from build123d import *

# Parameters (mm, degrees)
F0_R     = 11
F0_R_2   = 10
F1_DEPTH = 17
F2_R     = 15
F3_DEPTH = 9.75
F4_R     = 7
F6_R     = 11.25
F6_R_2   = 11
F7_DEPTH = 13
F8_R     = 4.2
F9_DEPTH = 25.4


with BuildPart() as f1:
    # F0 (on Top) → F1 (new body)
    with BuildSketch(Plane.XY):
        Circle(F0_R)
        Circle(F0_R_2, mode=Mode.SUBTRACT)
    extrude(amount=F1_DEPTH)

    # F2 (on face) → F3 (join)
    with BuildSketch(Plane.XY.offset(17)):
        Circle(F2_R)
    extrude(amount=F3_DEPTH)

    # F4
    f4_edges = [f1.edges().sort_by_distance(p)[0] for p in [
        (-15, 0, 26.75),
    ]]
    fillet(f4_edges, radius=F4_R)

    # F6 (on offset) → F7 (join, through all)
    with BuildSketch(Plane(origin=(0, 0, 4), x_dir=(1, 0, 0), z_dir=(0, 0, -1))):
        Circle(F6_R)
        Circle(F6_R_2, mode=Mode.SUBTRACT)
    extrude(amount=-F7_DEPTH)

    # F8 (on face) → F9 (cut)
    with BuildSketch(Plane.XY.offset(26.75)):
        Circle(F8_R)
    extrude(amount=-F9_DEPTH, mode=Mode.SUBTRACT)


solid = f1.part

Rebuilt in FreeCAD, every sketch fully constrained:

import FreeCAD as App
import Part
import Sketcher


def edges_at(feature, points):
    """Names of the edges that pass closest to the given points."""
    edges = feature.Shape.Edges
    near = lambda p: min(range(len(edges)), key=lambda i: edges[i].distToShape(Part.Vertex(*p))[0])
    return sorted({f"Edge{near(p) + 1}" for p in points})

doc = App.newDocument("Part")
body = doc.addObject("PartDesign::Body", "Body")

# Sketch on XY plane
sketch1 = body.newObject("Sketcher::SketchObject", "Sketch")
sketch1.AttachmentSupport = (doc.getObject("XY_Plane"), [""])
sketch1.MapMode = "FlatFace"
sketch1.addGeometry([
    Part.Circle(App.Vector(0, 0, 0), App.Vector(0, 0, 1), 11),
    Part.Circle(App.Vector(0, 0, 0), App.Vector(0, 0, 1), 10),
], False)
sketch1.addConstraint([
    Sketcher.Constraint("Coincident", 0, 3, -1, 1),
    Sketcher.Constraint("Coincident", 1, 3, -1, 1),
    Sketcher.Constraint("Diameter", 0, 22.0),
    Sketcher.Constraint("Diameter", 1, 20.0),
])
pad1 = body.newObject("PartDesign::Pad", "Pad")
pad1.Profile = sketch1
pad1.Length = 17

# Sketch on XY plane
sketch2 = body.newObject("Sketcher::SketchObject", "Sketch001")
sketch2.AttachmentSupport = (doc.getObject("XY_Plane"), [""])
sketch2.MapMode = "FlatFace"
sketch2.AttachmentOffset = App.Placement(App.Vector(0, 0, 17), App.Rotation())
sketch2.addGeometry(Part.Circle(App.Vector(0, 0, 0), App.Vector(0, 0, 1), 15), False)
sketch2.addConstraint([
    Sketcher.Constraint("Coincident", 0, 3, -1, 1),
    Sketcher.Constraint("Diameter", 0, 30.0),
])
pad2 = body.newObject("PartDesign::Pad", "Pad001")
pad2.Profile = sketch2
pad2.Length = 9.75
doc.recompute()

fillet = body.newObject("PartDesign::Fillet", "Fillet")
fillet.Base = (pad2, edges_at(pad2, [(-15, 0, 26.75)]))
fillet.Radius = 7

# Sketch on XY plane
sketch3 = body.newObject("Sketcher::SketchObject", "Sketch002")
sketch3.AttachmentSupport = (doc.getObject("XY_Plane"), [""])
sketch3.MapMode = "FlatFace"
sketch3.AttachmentOffset = App.Placement(App.Vector(0, 0, 4), App.Rotation())
sketch3.addGeometry([
    Part.Circle(App.Vector(0, 0, 0), App.Vector(0, 0, 1), 11),
    Part.Circle(App.Vector(0, 0, 0), App.Vector(0, 0, 1), 11),
], False)
sketch3.addConstraint([
    Sketcher.Constraint("Coincident", 0, 3, -1, 1),
    Sketcher.Constraint("Coincident", 1, 3, -1, 1),
    Sketcher.Constraint("Diameter", 1, 22.0),
    Sketcher.Constraint("Diameter", 0, 22.5),
])
pad3 = body.newObject("PartDesign::Pad", "Pad002")
pad3.Profile = sketch3
pad3.Length = 13

# Sketch on XY plane
sketch4 = body.newObject("Sketcher::SketchObject", "Sketch003")
sketch4.AttachmentSupport = (doc.getObject("XY_Plane"), [""])
sketch4.MapMode = "FlatFace"
sketch4.AttachmentOffset = App.Placement(App.Vector(0, 0, 26.75), App.Rotation())
sketch4.addGeometry(Part.Circle(App.Vector(0, 0, 0), App.Vector(0, 0, 1), 4.2), False)
sketch4.addConstraint([
    Sketcher.Constraint("Coincident", 0, 3, -1, 1),
    Sketcher.Constraint("Diameter", 0, 8.4),
])
pocket1 = body.newObject("PartDesign::Pocket", "Pocket")
pocket1.Profile = sketch4
pocket1.Length = 25.4

doc.recompute()
